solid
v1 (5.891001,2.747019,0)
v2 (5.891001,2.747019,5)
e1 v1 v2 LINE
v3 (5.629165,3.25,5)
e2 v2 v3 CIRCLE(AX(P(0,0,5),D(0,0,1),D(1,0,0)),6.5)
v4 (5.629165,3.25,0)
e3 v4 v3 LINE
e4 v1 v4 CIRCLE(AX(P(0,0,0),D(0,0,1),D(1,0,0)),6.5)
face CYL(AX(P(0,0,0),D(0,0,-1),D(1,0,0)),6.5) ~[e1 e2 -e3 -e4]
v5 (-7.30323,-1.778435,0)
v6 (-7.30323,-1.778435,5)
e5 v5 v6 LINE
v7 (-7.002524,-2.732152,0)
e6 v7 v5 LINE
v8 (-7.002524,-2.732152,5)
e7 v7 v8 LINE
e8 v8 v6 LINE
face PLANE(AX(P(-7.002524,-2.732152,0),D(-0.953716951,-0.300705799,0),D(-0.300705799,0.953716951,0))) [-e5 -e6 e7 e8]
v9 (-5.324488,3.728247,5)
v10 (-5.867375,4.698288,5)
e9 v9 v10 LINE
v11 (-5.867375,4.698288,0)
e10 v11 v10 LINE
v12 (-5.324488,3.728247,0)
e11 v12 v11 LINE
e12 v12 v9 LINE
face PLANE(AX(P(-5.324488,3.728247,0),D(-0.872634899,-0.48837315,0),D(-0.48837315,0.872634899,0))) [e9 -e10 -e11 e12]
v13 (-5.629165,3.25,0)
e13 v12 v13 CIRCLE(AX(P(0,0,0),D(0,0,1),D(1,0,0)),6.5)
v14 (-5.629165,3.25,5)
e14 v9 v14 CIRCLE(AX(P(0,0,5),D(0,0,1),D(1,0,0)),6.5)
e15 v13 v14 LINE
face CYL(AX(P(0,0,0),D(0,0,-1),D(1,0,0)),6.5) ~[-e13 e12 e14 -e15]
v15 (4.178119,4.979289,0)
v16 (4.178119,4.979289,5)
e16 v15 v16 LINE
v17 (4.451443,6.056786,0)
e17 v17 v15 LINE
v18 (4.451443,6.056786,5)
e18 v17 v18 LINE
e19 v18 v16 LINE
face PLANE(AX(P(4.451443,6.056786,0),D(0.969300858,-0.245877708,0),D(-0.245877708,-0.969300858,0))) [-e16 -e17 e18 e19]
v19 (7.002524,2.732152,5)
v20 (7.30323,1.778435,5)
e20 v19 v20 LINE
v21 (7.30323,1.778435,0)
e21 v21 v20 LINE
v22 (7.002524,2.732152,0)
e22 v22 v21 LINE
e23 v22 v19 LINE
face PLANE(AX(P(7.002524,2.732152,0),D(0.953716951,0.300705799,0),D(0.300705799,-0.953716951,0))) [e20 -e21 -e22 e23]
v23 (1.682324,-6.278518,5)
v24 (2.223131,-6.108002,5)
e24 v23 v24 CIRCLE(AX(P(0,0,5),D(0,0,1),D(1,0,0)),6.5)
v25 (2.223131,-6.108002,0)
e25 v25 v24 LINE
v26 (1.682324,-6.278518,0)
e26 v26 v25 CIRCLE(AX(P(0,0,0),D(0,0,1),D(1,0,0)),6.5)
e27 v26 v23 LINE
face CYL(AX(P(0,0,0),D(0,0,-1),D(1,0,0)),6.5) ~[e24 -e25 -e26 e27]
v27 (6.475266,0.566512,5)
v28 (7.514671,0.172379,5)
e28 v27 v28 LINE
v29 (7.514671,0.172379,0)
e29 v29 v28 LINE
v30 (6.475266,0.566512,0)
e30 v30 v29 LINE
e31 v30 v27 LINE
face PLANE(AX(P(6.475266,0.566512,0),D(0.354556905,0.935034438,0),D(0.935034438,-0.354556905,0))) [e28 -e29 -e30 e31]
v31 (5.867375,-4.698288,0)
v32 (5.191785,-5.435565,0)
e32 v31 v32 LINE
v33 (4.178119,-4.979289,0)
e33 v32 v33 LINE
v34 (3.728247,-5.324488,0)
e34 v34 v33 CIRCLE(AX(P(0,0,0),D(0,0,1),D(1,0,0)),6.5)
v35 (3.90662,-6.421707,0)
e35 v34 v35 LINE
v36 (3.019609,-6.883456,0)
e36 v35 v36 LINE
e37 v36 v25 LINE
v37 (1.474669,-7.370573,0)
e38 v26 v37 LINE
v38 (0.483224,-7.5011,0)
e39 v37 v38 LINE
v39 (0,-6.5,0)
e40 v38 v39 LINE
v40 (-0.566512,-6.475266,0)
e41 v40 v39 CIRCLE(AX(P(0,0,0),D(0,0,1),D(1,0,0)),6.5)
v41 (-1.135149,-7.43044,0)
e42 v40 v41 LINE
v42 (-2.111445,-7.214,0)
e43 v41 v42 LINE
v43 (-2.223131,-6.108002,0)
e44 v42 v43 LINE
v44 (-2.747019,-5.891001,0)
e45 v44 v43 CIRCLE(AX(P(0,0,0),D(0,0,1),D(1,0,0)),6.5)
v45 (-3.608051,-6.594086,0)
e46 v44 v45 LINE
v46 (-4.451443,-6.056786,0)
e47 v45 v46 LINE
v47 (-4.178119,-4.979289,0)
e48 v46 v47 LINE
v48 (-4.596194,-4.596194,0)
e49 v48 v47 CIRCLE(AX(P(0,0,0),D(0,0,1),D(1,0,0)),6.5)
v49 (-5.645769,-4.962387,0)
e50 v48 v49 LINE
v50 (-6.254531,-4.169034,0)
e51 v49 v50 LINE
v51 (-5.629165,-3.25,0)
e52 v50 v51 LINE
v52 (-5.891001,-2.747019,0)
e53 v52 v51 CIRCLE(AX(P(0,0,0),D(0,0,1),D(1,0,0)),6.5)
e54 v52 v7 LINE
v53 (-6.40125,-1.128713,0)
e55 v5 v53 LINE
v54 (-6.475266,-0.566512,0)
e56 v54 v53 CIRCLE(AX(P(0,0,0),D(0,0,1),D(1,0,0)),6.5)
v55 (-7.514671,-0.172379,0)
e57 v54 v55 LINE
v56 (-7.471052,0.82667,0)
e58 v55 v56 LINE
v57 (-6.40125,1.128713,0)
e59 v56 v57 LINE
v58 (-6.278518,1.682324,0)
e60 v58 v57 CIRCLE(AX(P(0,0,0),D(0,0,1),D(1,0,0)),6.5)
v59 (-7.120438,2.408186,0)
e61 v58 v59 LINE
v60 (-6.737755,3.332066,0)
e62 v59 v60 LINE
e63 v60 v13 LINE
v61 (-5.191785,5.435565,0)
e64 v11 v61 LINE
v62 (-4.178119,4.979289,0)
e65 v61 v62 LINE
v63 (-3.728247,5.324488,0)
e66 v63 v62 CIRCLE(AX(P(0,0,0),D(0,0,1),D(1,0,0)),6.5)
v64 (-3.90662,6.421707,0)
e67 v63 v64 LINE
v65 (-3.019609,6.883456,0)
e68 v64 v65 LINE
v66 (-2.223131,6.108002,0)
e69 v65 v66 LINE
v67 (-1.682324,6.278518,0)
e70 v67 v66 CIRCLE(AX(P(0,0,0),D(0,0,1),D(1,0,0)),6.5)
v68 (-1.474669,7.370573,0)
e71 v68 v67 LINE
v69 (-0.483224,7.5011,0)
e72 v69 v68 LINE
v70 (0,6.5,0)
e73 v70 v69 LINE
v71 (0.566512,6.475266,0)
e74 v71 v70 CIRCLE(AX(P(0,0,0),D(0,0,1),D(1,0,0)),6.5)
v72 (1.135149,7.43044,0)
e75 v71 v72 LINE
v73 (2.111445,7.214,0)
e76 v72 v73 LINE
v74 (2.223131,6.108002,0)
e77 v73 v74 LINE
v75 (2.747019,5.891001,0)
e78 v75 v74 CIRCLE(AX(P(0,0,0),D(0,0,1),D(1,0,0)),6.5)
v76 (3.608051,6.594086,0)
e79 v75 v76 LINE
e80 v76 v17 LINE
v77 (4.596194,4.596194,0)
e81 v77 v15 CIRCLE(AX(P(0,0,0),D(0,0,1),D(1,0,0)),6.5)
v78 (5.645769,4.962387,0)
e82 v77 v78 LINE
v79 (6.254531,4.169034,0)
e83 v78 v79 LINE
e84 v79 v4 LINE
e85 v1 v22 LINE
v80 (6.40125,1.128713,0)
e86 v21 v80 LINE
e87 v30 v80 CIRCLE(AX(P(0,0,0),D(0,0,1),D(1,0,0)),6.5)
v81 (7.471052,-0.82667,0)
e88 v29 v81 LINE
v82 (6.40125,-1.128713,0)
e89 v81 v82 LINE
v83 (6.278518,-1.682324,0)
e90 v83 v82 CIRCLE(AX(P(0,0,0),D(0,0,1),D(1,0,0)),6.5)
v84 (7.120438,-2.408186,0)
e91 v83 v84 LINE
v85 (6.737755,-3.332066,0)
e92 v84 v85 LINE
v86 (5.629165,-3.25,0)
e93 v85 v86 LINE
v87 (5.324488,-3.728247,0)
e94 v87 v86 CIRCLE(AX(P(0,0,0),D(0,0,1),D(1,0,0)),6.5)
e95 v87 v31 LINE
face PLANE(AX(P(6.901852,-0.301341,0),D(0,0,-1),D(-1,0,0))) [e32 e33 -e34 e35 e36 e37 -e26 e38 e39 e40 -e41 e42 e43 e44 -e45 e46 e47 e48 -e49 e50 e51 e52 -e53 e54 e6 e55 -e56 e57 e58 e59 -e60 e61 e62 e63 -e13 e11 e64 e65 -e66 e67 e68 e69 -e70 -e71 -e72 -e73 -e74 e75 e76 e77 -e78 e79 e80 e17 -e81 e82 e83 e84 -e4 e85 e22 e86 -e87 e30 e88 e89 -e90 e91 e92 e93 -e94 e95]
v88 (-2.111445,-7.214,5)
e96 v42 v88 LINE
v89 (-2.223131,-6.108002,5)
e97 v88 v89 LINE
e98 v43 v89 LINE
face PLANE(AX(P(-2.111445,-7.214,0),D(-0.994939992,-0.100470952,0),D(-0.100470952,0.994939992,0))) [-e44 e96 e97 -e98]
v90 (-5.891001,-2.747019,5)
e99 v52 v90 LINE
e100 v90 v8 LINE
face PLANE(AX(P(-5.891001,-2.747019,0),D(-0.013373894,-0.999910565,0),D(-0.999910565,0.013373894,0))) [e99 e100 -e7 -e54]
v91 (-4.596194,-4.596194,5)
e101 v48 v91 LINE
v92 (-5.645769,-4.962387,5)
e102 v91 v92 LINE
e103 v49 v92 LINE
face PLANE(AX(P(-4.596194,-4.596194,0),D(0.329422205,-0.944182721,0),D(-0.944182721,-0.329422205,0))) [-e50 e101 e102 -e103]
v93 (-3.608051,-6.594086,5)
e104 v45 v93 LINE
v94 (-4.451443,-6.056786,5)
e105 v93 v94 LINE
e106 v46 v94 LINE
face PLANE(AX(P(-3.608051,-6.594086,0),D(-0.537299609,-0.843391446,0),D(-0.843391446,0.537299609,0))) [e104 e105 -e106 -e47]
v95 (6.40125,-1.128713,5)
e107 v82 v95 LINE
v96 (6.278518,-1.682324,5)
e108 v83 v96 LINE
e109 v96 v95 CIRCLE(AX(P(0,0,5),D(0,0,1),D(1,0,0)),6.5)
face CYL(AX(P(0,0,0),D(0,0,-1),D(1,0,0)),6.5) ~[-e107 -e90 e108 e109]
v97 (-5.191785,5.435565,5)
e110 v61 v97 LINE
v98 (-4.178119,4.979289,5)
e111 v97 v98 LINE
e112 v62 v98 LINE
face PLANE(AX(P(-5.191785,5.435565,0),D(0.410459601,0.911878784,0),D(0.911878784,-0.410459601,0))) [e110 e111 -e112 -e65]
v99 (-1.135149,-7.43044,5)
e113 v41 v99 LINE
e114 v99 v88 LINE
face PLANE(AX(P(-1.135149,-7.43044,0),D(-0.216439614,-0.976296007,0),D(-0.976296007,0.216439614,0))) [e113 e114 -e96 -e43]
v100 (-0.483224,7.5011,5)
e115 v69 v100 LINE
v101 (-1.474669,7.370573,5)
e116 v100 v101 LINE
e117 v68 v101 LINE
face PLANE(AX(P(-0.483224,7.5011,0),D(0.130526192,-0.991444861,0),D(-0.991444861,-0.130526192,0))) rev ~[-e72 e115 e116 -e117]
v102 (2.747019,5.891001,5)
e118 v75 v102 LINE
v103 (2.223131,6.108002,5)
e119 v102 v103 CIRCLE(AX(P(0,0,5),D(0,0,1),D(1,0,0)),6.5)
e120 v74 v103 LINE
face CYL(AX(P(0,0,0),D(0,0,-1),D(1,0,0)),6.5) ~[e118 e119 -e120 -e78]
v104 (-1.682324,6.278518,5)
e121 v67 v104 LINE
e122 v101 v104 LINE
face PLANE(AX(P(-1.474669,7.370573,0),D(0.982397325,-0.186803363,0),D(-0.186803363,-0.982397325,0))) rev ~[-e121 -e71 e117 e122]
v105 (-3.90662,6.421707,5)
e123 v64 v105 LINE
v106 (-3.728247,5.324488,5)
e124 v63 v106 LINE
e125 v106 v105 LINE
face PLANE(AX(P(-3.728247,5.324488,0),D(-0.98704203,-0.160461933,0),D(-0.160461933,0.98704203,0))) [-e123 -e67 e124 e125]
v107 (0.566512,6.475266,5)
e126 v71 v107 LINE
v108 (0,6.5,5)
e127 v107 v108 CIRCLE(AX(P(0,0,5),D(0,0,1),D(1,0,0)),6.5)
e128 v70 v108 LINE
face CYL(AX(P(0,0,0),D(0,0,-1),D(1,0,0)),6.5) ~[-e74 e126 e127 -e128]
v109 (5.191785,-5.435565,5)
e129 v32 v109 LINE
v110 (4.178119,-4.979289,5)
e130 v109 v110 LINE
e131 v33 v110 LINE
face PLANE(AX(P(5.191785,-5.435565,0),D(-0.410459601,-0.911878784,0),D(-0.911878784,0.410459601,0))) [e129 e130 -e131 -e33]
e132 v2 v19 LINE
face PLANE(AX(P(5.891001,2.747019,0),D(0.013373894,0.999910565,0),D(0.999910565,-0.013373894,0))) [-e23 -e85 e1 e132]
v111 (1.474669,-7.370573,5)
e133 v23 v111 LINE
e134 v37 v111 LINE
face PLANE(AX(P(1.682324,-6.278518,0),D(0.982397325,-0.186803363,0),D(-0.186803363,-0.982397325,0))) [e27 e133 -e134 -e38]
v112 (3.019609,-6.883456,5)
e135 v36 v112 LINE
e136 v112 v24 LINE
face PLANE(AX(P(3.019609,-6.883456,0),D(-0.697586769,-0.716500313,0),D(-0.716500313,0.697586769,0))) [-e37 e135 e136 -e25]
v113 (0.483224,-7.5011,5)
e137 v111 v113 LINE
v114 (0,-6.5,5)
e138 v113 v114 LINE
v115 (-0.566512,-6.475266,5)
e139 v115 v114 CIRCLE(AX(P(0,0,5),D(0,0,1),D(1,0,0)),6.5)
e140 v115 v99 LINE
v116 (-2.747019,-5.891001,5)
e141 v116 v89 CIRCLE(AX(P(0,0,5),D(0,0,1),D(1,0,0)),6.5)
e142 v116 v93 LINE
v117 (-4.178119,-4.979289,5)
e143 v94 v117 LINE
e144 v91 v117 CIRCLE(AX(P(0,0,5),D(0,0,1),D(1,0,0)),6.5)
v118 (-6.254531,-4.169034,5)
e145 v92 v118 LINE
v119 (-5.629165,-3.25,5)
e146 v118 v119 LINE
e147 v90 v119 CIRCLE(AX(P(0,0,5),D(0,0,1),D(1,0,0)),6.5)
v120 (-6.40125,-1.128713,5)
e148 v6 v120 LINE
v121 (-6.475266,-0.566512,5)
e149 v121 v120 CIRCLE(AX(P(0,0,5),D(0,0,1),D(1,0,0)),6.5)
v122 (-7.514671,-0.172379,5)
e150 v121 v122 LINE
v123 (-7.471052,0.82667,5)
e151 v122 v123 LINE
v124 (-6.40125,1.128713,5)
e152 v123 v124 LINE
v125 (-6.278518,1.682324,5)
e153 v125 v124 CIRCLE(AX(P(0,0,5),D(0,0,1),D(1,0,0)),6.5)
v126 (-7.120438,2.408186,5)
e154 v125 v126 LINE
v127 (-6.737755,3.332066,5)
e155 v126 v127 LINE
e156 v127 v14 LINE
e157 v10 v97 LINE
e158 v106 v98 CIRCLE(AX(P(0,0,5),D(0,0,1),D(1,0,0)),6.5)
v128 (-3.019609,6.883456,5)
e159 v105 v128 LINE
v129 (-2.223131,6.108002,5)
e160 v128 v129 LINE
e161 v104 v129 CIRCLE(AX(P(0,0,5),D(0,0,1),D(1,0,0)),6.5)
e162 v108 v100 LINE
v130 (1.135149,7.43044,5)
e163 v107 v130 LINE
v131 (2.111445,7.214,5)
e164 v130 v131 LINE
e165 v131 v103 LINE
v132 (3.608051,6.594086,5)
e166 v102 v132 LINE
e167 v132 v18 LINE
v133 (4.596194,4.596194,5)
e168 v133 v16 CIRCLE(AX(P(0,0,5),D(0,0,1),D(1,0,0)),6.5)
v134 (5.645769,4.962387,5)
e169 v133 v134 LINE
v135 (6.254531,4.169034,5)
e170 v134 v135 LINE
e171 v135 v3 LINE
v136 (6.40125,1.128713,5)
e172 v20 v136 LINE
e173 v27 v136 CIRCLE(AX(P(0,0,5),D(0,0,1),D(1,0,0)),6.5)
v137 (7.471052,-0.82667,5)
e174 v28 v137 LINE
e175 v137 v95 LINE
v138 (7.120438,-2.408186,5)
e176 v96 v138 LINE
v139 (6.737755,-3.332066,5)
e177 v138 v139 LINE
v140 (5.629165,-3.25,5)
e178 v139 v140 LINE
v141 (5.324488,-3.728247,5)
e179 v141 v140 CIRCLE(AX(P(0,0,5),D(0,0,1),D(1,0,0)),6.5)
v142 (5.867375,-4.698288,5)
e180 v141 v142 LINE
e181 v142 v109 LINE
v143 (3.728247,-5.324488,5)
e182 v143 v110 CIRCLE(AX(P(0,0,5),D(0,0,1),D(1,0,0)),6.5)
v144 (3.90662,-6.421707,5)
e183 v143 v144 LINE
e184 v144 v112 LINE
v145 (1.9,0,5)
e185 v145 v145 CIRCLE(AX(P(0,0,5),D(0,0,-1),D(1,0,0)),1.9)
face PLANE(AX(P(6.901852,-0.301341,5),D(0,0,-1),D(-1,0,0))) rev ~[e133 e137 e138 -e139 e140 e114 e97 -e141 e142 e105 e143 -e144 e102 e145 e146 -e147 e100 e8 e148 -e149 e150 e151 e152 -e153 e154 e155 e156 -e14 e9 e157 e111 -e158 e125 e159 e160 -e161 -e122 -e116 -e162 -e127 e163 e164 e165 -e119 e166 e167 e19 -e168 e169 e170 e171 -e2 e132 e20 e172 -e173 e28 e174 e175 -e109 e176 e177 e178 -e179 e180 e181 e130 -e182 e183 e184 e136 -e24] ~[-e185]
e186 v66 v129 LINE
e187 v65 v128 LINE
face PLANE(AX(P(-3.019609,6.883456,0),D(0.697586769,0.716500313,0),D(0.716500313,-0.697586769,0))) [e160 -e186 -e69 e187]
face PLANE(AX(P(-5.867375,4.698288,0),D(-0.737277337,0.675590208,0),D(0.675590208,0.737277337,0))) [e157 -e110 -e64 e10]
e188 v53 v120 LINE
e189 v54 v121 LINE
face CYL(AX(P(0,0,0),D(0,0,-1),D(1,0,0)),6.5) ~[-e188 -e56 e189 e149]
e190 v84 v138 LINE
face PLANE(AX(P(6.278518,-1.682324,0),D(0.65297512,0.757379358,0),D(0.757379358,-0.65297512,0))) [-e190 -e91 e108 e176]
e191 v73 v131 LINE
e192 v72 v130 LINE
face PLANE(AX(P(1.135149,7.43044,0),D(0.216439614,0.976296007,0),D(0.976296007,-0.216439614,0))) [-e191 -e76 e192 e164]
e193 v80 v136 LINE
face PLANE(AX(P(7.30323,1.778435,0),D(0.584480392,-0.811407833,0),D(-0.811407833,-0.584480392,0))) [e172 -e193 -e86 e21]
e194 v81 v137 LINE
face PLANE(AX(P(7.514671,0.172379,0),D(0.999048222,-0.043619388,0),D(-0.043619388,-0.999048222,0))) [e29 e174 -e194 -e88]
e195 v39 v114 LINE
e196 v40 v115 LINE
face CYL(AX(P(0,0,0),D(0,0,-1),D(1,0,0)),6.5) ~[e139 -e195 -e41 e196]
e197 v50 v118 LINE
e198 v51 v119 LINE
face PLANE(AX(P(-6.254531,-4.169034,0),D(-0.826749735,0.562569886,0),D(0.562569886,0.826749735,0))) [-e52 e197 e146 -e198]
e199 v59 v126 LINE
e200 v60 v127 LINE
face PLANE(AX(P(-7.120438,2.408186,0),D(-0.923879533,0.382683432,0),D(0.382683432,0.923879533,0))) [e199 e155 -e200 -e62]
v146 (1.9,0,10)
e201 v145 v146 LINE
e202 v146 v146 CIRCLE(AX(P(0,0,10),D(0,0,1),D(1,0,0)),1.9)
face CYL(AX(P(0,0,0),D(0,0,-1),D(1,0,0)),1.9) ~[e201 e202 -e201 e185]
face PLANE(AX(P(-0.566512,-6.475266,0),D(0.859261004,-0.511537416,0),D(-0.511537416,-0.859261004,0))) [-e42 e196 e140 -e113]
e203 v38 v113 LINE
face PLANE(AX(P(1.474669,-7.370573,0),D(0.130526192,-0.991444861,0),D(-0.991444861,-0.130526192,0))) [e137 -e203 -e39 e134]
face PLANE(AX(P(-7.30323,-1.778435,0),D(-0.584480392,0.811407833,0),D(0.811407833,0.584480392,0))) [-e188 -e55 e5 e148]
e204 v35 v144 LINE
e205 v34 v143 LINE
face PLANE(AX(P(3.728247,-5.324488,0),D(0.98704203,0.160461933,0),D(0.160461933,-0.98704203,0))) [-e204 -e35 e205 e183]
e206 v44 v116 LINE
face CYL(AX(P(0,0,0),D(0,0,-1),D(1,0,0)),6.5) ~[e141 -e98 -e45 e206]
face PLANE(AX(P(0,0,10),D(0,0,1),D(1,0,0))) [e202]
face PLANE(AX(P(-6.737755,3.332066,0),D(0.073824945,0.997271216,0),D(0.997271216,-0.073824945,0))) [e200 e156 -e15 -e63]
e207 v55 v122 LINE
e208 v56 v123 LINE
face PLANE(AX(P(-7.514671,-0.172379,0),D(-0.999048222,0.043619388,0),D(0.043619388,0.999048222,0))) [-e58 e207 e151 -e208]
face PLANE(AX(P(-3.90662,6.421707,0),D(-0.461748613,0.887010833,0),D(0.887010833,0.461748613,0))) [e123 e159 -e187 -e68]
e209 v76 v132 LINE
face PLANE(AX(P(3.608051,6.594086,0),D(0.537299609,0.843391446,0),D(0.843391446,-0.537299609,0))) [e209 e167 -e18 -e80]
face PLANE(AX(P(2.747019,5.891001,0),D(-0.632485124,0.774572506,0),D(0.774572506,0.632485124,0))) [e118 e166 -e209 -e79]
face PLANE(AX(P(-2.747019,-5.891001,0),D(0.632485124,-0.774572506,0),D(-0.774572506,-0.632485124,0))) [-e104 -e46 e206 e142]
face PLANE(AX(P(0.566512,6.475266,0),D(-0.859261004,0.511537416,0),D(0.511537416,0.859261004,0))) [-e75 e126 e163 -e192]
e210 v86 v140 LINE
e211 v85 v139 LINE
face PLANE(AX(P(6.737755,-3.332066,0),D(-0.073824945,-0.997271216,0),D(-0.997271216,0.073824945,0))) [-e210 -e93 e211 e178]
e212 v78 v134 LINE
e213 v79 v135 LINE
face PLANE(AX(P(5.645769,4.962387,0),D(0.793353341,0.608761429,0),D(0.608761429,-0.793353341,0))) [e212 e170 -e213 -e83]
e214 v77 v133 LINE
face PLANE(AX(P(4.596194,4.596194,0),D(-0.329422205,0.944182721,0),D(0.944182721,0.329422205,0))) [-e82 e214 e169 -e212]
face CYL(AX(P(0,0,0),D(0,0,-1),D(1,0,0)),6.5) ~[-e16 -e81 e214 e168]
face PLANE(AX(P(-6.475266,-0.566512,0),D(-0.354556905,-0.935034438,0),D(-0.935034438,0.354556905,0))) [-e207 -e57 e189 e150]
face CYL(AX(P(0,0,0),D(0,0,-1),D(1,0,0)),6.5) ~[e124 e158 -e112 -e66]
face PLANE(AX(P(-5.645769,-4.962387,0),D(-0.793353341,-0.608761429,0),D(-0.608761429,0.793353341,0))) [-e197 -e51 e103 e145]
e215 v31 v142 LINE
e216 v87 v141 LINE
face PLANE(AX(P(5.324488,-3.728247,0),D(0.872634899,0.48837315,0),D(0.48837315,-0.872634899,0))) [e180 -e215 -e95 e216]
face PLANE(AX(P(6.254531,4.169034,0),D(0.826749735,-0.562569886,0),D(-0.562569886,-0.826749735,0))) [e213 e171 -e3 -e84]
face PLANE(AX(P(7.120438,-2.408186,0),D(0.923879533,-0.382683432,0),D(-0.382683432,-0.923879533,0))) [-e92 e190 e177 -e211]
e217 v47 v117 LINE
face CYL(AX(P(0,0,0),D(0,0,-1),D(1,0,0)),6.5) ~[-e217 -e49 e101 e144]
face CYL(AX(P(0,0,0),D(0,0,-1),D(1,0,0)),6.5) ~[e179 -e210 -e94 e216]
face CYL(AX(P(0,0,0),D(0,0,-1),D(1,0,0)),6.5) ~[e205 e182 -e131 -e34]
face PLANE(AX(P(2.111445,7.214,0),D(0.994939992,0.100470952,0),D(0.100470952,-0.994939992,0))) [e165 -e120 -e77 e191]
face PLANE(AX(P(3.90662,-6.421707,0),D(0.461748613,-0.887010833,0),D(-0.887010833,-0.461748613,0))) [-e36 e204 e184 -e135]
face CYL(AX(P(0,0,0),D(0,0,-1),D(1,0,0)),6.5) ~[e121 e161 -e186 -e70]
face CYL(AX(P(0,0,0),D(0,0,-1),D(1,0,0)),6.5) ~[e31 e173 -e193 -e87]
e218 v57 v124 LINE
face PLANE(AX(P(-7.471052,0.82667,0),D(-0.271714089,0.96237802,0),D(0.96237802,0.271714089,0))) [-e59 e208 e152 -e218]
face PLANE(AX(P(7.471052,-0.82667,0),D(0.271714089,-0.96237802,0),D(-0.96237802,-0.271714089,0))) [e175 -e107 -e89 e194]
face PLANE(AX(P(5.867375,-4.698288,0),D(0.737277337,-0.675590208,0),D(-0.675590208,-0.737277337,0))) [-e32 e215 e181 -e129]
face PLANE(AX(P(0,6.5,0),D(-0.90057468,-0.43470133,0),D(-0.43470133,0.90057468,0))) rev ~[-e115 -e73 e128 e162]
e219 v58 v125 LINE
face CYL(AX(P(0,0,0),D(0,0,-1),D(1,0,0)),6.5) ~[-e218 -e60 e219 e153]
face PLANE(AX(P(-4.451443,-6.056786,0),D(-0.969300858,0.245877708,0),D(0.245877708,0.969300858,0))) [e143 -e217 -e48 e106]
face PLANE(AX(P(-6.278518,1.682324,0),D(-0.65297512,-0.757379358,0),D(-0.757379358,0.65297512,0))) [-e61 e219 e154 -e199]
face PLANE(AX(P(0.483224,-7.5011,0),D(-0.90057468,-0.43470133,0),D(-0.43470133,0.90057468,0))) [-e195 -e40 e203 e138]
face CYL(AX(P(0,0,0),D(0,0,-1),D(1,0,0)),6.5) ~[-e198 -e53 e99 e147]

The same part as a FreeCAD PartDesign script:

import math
import FreeCAD as App
import Part
import Sketcher
Q = App.Units.Quantity

doc = App.newDocument("Part")
params = doc.addObject("Spreadsheet::Sheet", "Params")
for row, (alias, value) in enumerate([
    ("sketch1_diameter", "3.8 mm"),
    ("pad1_length", "10 mm"),
    ("sketch2_diameter", "13 mm"),
    ("pad2_length", "5 mm"),
    ("sketch3_radius", "6.5 mm"),
    ("sketch3_length", "1 mm"),
    ("pad3_length", "5 mm"),
], start=1):
    params.set(f"A{row}", alias)
    params.set(f"B{row}", "=" + value)
    params.setAlias(f"B{row}", alias)

body = doc.addObject("PartDesign::Body", "Body")

# Sketch on XY plane
sketch1 = body.newObject("Sketcher::SketchObject", "Sketch")
sketch1.AttachmentSupport = (doc.getObject("XY_Plane"), [""])
sketch1.MapMode = "FlatFace"
sketch1.addGeometry(Part.Circle(App.Vector(0, 0, 0), App.Vector(0, 0, 1), 1.9), False)
sketch1.addConstraint(Sketcher.Constraint("Coincident", 0, 3, -1, 1))
sketch1.addConstraint(Sketcher.Constraint("Diameter", 0, 3.8))
sketch1.setExpression("Constraints[1]", "Params.sketch1_diameter")
pad1 = body.newObject("PartDesign::Pad", "Pad")
pad1.Profile = sketch1
pad1.setExpression("Length", "Params.pad1_length")

# Sketch on XY plane
sketch2 = body.newObject("Sketcher::SketchObject", "Sketch001")
sketch2.AttachmentSupport = (doc.getObject("XY_Plane"), [""])
sketch2.MapMode = "FlatFace"
sketch2.addGeometry(Part.Circle(App.Vector(0, 0, 0), App.Vector(0, 0, 1), 6), False)
sketch2.addConstraint(Sketcher.Constraint("Coincident", 0, 3, -1, 1))
sketch2.addConstraint(Sketcher.Constraint("Diameter", 0, 13.0))
sketch2.setExpression("Constraints[1]", "Params.sketch2_diameter")
pad2 = body.newObject("PartDesign::Pad", "Pad001")
pad2.Profile = sketch2
pad2.setExpression("Length", "Params.pad2_length")

# Sketch on XY plane
sketch3 = body.newObject("Sketcher::SketchObject", "Sketch002")
sketch3.AttachmentSupport = (doc.getObject("XY_Plane"), [""])
sketch3.MapMode = "FlatFace"
sketch3.addGeometry(Part.LineSegment(App.Vector(-1.5, 7.4, 0), App.Vector(-0.5, 7.5, 0)), False)
sketch3.addGeometry(Part.LineSegment(App.Vector(-0.5, 7.5, 0), App.Vector(0, 6.5, 0)), False)
sketch3.addGeometry(Part.ArcOfCircle(Part.Circle(App.Vector(0, 0, 0), App.Vector(0, 0, 1), 6.5), math.radians(90), math.radians(105)), False)
sketch3.addGeometry(Part.LineSegment(App.Vector(-1.7, 6.3, 0), App.Vector(-1.5, 7.4, 0)), False)
sketch3.addGeometry(Part.LineSegment(App.Vector(-3, 6.9, 0), App.Vector(-2.2, 6.1, 0)), False)
sketch3.addGeometry(Part.ArcOfCircle(Part.Circle(App.Vector(0, 0, 0), App.Vector(0, 0, 1), 6.5), math.radians(110), math.radians(125)), False)
sketch3.addGeometry(Part.LineSegment(App.Vector(-3.7, 5.3, 0), App.Vector(-3.9, 6.4, 0)), False)
sketch3.addGeometry(Part.LineSegment(App.Vector(-3.9, 6.4, 0), App.Vector(-3, 6.9, 0)), False)
sketch3.addGeometry(Part.LineSegment(App.Vector(-5.2, 5.4, 0), App.Vector(-4.2, 5, 0)), False)
sketch3.addGeometry(Part.ArcOfCircle(Part.Circle(App.Vector(0, 0, 0), App.Vector(0, 0, 1), 6.5), math.radians(130), math.radians(145)), False)
sketch3.addGeometry(Part.LineSegment(App.Vector(-5.3, 3.7, 0), App.Vector(-5.9, 4.7, 0)), False)
sketch3.addGeometry(Part.LineSegment(App.Vector(-5.9, 4.7, 0), App.Vector(-5.2, 5.4, 0)), False)
sketch3.addGeometry(Part.LineSegment(App.Vector(-6.7, 3.3, 0), App.Vector(-5.6, 3.2, 0)), False)
sketch3.addGeometry(Part.ArcOfCircle(Part.Circle(App.Vector(0, 0, 0), App.Vector(0, 0, 1), 6.5), math.radians(150), math.radians(165)), False)
sketch3.addGeometry(Part.LineSegment(App.Vector(-6.3, 1.7, 0), App.Vector(-7.1, 2.4, 0)), False)
sketch3.addGeometry(Part.LineSegment(App.Vector(-7.1, 2.4, 0), App.Vector(-6.7, 3.3, 0)), False)
sketch3.addGeometry(Part.LineSegment(App.Vector(-7.5, 0.8, 0), App.Vector(-6.4, 1.1, 0)), False)
sketch3.addGeometry(Part.ArcOfCircle(Part.Circle(App.Vector(0, 0, 0), App.Vector(0, 0, 1), 6.5), math.radians(170), math.radians(185)), False)
sketch3.addGeometry(Part.LineSegment(App.Vector(-6.5, -0.6, 0), App.Vector(-7.5, -0.2, 0)), False)
sketch3.addGeometry(Part.LineSegment(App.Vector(-7.5, -0.2, 0), App.Vector(-7.5, 0.8, 0)), False)
sketch3.addGeometry(Part.LineSegment(App.Vector(-7.3, -1.8, 0), App.Vector(-6.4, -1.1, 0)), False)
sketch3.addGeometry(Part.ArcOfCircle(Part.Circle(App.Vector(0, 0, 0), App.Vector(0, 0, 1), 6.5), math.radians(-170), math.radians(-155)), False)
sketch3.addGeometry(Part.LineSegment(App.Vector(-5.9, -2.7, 0), App.Vector(-7, -2.7, 0)), False)
sketch3.addGeometry(Part.LineSegment(App.Vector(-7, -2.7, 0), App.Vector(-7.3, -1.8, 0)), False)
sketch3.addGeometry(Part.LineSegment(App.Vector(-6.3, -4.2, 0), App.Vector(-5.6, -3.2, 0)), False)
sketch3.addGeometry(Part.ArcOfCircle(Part.Circle(App.Vector(0, 0, 0), App.Vector(0, 0, 1), 6.5), math.radians(-150), math.radians(-135)), False)
sketch3.addGeometry(Part.LineSegment(App.Vector(-4.6, -4.6, 0), App.Vector(-5.6, -5, 0)), False)
sketch3.addGeometry(Part.LineSegment(App.Vector(-5.6, -5, 0), App.Vector(-6.3, -4.2, 0)), False)
sketch3.addGeometry(Part.LineSegment(App.Vector(-4.5, -6.1, 0), App.Vector(-4.2, -5, 0)), False)
sketch3.addGeometry(Part.ArcOfCircle(Part.Circle(App.Vector(0, 0, 0), App.Vector(0, 0, 1), 6.5), math.radians(-130), math.radians(-115)), False)
sketch3.addGeometry(Part.LineSegment(App.Vector(-2.7, -5.9, 0), App.Vector(-3.6, -6.6, 0)), False)
sketch3.addGeometry(Part.LineSegment(App.Vector(-3.6, -6.6, 0), App.Vector(-4.5, -6.1, 0)), False)
sketch3.addGeometry(Part.LineSegment(App.Vector(-2.1, -7.2, 0), App.Vector(-2.2, -6.1, 0)), False)
sketch3.addGeometry(Part.ArcOfCircle(Part.Circle(App.Vector(0, 0, 0), App.Vector(0, 0, 1), 6.5), math.radians(-110), math.radians(-95)), False)
sketch3.addGeometry(Part.LineSegment(App.Vector(-0.6, -6.5, 0), App.Vector(-1.1, -7.4, 0)), False)
sketch3.addGeometry(Part.LineSegment(App.Vector(-1.1, -7.4, 0), App.Vector(-2.1, -7.2, 0)), False)
sketch3.addGeometry(Part.LineSegment(App.Vector(0.5, -7.5, 0), App.Vector(0, -6.5, 0)), False)
sketch3.addGeometry(Part.ArcOfCircle(Part.Circle(App.Vector(0, 0, 0), App.Vector(0, 0, 1), 6.5), math.radians(-90), math.radians(-75)), False)
sketch3.addGeometry(Part.LineSegment(App.Vector(1.7, -6.3, 0), App.Vector(1.5, -7.4, 0)), False)
sketch3.addGeometry(Part.LineSegment(App.Vector(1.5, -7.4, 0), App.Vector(0.5, -7.5, 0)), False)
sketch3.addGeometry(Part.LineSegment(App.Vector(3, -6.9, 0), App.Vector(2.2, -6.1, 0)), False)
sketch3.addGeometry(Part.ArcOfCircle(Part.Circle(App.Vector(0, 0, 0), App.Vector(0, 0, 1), 6.5), math.radians(-70), math.radians(-55)), False)
sketch3.addGeometry(Part.LineSegment(App.Vector(3.7, -5.3, 0), App.Vector(3.9, -6.4, 0)), False)
sketch3.addGeometry(Part.LineSegment(App.Vector(3.9, -6.4, 0), App.Vector(3, -6.9, 0)), False)
sketch3.addGeometry(Part.LineSegment(App.Vector(5.2, -5.4, 0), App.Vector(4.2, -5, 0)), False)
sketch3.addGeometry(Part.ArcOfCircle(Part.Circle(App.Vector(0, 0, 0), App.Vector(0, 0, 1), 6.5), math.radians(-50), math.radians(-35)), False)
sketch3.addGeometry(Part.LineSegment(App.Vector(5.3, -3.7, 0), App.Vector(5.9, -4.7, 0)), False)
sketch3.addGeometry(Part.LineSegment(App.Vector(5.9, -4.7, 0), App.Vector(5.2, -5.4, 0)), False)
sketch3.addGeometry(Part.LineSegment(App.Vector(6.7, -3.3, 0), App.Vector(5.6, -3.2, 0)), False)
sketch3.addGeometry(Part.ArcOfCircle(Part.Circle(App.Vector(0, 0, 0), App.Vector(0, 0, 1), 6.5), math.radians(-30), math.radians(-15)), False)
sketch3.addGeometry(Part.LineSegment(App.Vector(6.3, -1.7, 0), App.Vector(7.1, -2.4, 0)), False)
sketch3.addGeometry(Part.LineSegment(App.Vector(7.1, -2.4, 0), App.Vector(6.7, -3.3, 0)), False)
sketch3.addGeometry(Part.LineSegment(App.Vector(7.5, -0.8, 0), App.Vector(6.4, -1.1, 0)), False)
sketch3.addGeometry(Part.ArcOfCircle(Part.Circle(App.Vector(0, 0, 0), App.Vector(0, 0, 1), 6.5), math.radians(-10), math.radians(5)), False)
sketch3.addGeometry(Part.LineSegment(App.Vector(6.5, 0.6, 0), App.Vector(7.5, 0.2, 0)), False)
sketch3.addGeometry(Part.LineSegment(App.Vector(7.5, 0.2, 0), App.Vector(7.5, -0.8, 0)), False)
sketch3.addGeometry(Part.LineSegment(App.Vector(7.3, 1.8, 0), App.Vector(6.4, 1.1, 0)), False)
sketch3.addGeometry(Part.ArcOfCircle(Part.Circle(App.Vector(0, 0, 0), App.Vector(0, 0, 1), 6.5), math.radians(10), math.radians(25)), False)
sketch3.addGeometry(Part.LineSegment(App.Vector(5.9, 2.7, 0), App.Vector(7, 2.7, 0)), False)
sketch3.addGeometry(Part.LineSegment(App.Vector(7, 2.7, 0), App.Vector(7.3, 1.8, 0)), False)
sketch3.addGeometry(Part.LineSegment(App.Vector(6.3, 4.2, 0), App.Vector(5.6, 3.2, 0)), False)
sketch3.addGeometry(Part.ArcOfCircle(Part.Circle(App.Vector(0, 0, 0), App.Vector(0, 0, 1), 6.5), math.radians(30), math.radians(45)), False)
sketch3.addGeometry(Part.LineSegment(App.Vector(4.6, 4.6, 0), App.Vector(5.6, 5, 0)), False)
sketch3.addGeometry(Part.LineSegment(App.Vector(5.6, 5, 0), App.Vector(6.3, 4.2, 0)), False)
sketch3.addGeometry(Part.LineSegment(App.Vector(4.5, 6.1, 0), App.Vector(4.2, 5, 0)), False)
sketch3.addGeometry(Part.ArcOfCircle(Part.Circle(App.Vector(0, 0, 0), App.Vector(0, 0, 1), 6.5), math.radians(50), math.radians(65)), False)
sketch3.addGeometry(Part.LineSegment(App.Vector(2.7, 5.9, 0), App.Vector(3.6, 6.6, 0)), False)
sketch3.addGeometry(Part.LineSegment(App.Vector(3.6, 6.6, 0), App.Vector(4.5, 6.1, 0)), False)
sketch3.addGeometry(Part.LineSegment(App.Vector(2.1, 7.2, 0), App.Vector(2.2, 6.1, 0)), False)
sketch3.addGeometry(Part.ArcOfCircle(Part.Circle(App.Vector(0, 0, 0), App.Vector(0, 0, 1), 6.5), math.radians(70), math.radians(85)), False)
sketch3.addGeometry(Part.LineSegment(App.Vector(0.6, 6.5, 0), App.Vector(1.1, 7.4, 0)), False)
sketch3.addGeometry(Part.LineSegment(App.Vector(1.1, 7.4, 0), App.Vector(2.1, 7.2, 0)), False)
sketch3.addConstraint(Sketcher.Constraint("Coincident", 0, 2, 1, 1))
sketch3.addConstraint(Sketcher.Constraint("Coincident", 1, 2, 2, 1))
sketch3.addConstraint(Sketcher.Constraint("Coincident", 2, 2, 3, 1))
sketch3.addConstraint(Sketcher.Constraint("Coincident", 3, 2, 0, 1))
sketch3.addConstraint(Sketcher.Constraint("Coincident", 4, 2, 5, 1))
sketch3.addConstraint(Sketcher.Constraint("Coincident", 5, 2, 6, 1))
sketch3.addConstraint(Sketcher.Constraint("Coincident", 6, 2, 7, 1))
sketch3.addConstraint(Sketcher.Constraint("Coincident", 7, 2, 4, 1))
sketch3.addConstraint(Sketcher.Constraint("Coincident", 8, 2, 9, 1))
sketch3.addConstraint(Sketcher.Constraint("Coincident", 9, 2, 10, 1))
sketch3.addConstraint(Sketcher.Constraint("Coincident", 10, 2, 11, 1))
sketch3.addConstraint(Sketcher.Constraint("Coincident", 11, 2, 8, 1))
sketch3.addConstraint(Sketcher.Constraint("Coincident", 12, 2, 13, 1))
sketch3.addConstraint(Sketcher.Constraint("Coincident", 13, 2, 14, 1))
sketch3.addConstraint(Sketcher.Constraint("Coincident", 14, 2, 15, 1))
sketch3.addConstraint(Sketcher.Constraint("Coincident", 15, 2, 12, 1))
sketch3.addConstraint(Sketcher.Constraint("Coincident", 16, 2, 17, 1))
sketch3.addConstraint(Sketcher.Constraint("Coincident", 17, 2, 18, 1))
sketch3.addConstraint(Sketcher.Constraint("Coincident", 18, 2, 19, 1))
sketch3.addConstraint(Sketcher.Constraint("Coincident", 19, 2, 16, 1))
sketch3.addConstraint(Sketcher.Constraint("Coincident", 20, 2, 21, 1))
sketch3.addConstraint(Sketcher.Constraint("Coincident", 21, 2, 22, 1))
sketch3.addConstraint(Sketcher.Constraint("Coincident", 22, 2, 23, 1))
sketch3.addConstraint(Sketcher.Constraint("Coincident", 23, 2, 20, 1))
sketch3.addConstraint(Sketcher.Constraint("Coincident", 24, 2, 25, 1))
sketch3.addConstraint(Sketcher.Constraint("Coincident", 25, 2, 26, 1))
sketch3.addConstraint(Sketcher.Constraint("Coincident", 26, 2, 27, 1))
sketch3.addConstraint(Sketcher.Constraint("Coincident", 27, 2, 24, 1))
sketch3.addConstraint(Sketcher.Constraint("Coincident", 28, 2, 29, 1))
sketch3.addConstraint(Sketcher.Constraint("Coincident", 29, 2, 30, 1))
sketch3.addConstraint(Sketcher.Constraint("Coincident", 30, 2, 31, 1))
sketch3.addConstraint(Sketcher.Constraint("Coincident", 31, 2, 28, 1))
sketch3.addConstraint(Sketcher.Constraint("Coincident", 32, 2, 33, 1))
sketch3.addConstraint(Sketcher.Constraint("Coincident", 33, 2, 34, 1))
sketch3.addConstraint(Sketcher.Constraint("Coincident", 34, 2, 35, 1))
sketch3.addConstraint(Sketcher.Constraint("Coincident", 35, 2, 32, 1))
sketch3.addConstraint(Sketcher.Constraint("Coincident", 36, 2, 37, 1))
sketch3.addConstraint(Sketcher.Constraint("Coincident", 37, 2, 38, 1))
sketch3.addConstraint(Sketcher.Constraint("Coincident", 38, 2, 39, 1))
sketch3.addConstraint(Sketcher.Constraint("Coincident", 39, 2, 36, 1))
sketch3.addConstraint(Sketcher.Constraint("Coincident", 40, 2, 41, 1))
sketch3.addConstraint(Sketcher.Constraint("Coincident", 41, 2, 42, 1))
sketch3.addConstraint(Sketcher.Constraint("Coincident", 42, 2, 43, 1))
sketch3.addConstraint(Sketcher.Constraint("Coincident", 43, 2, 40, 1))
sketch3.addConstraint(Sketcher.Constraint("Coincident", 44, 2, 45, 1))
sketch3.addConstraint(Sketcher.Constraint("Coincident", 45, 2, 46, 1))
sketch3.addConstraint(Sketcher.Constraint("Coincident", 46, 2, 47, 1))
sketch3.addConstraint(Sketcher.Constraint("Coincident", 47, 2, 44, 1))
sketch3.addConstraint(Sketcher.Constraint("Coincident", 48, 2, 49, 1))
sketch3.addConstraint(Sketcher.Constraint("Coincident", 49, 2, 50, 1))
sketch3.addConstraint(Sketcher.Constraint("Coincident", 50, 2, 51, 1))
sketch3.addConstraint(Sketcher.Constraint("Coincident", 51, 2, 48, 1))
sketch3.addConstraint(Sketcher.Constraint("Coincident", 52, 2, 53, 1))
sketch3.addConstraint(Sketcher.Constraint("Coincident", 53, 2, 54, 1))
sketch3.addConstraint(Sketcher.Constraint("Coincident", 54, 2, 55, 1))
sketch3.addConstraint(Sketcher.Constraint("Coincident", 55, 2, 52, 1))
sketch3.addConstraint(Sketcher.Constraint("Coincident", 56, 2, 57, 1))
sketch3.addConstraint(Sketcher.Constraint("Coincident", 57, 2, 58, 1))
sketch3.addConstraint(Sketcher.Constraint("Coincident", 58, 2, 59, 1))
sketch3.addConstraint(Sketcher.Constraint("Coincident", 59, 2, 56, 1))
sketch3.addConstraint(Sketcher.Constraint("Coincident", 60, 2, 61, 1))
sketch3.addConstraint(Sketcher.Constraint("Coincident", 61, 2, 62, 1))
sketch3.addConstraint(Sketcher.Constraint("Coincident", 62, 2, 63, 1))
sketch3.addConstraint(Sketcher.Constraint("Coincident", 63, 2, 60, 1))
sketch3.addConstraint(Sketcher.Constraint("Coincident", 64, 2, 65, 1))
sketch3.addConstraint(Sketcher.Constraint("Coincident", 65, 2, 66, 1))
sketch3.addConstraint(Sketcher.Constraint("Coincident", 66, 2, 67, 1))
sketch3.addConstraint(Sketcher.Constraint("Coincident", 67, 2, 64, 1))
sketch3.addConstraint(Sketcher.Constraint("Coincident", 68, 2, 69, 1))
sketch3.addConstraint(Sketcher.Constraint("Coincident", 69, 2, 70, 1))
sketch3.addConstraint(Sketcher.Constraint("Coincident", 70, 2, 71, 1))
sketch3.addConstraint(Sketcher.Constraint("Coincident", 71, 2, 68, 1))
sketch3.addConstraint(Sketcher.Constraint("Coincident", 2, 3, -1, 1))
sketch3.addConstraint(Sketcher.Constraint("Coincident", 5, 3, -1, 1))
sketch3.addConstraint(Sketcher.Constraint("Coincident", 9, 3, -1, 1))
sketch3.addConstraint(Sketcher.Constraint("Coincident", 13, 3, -1, 1))
sketch3.addConstraint(Sketcher.Constraint("Coincident", 17, 3, -1, 1))
sketch3.addConstraint(Sketcher.Constraint("Coincident", 21, 3, -1, 1))
sketch3.addConstraint(Sketcher.Constraint("Coincident", 25, 3, -1, 1))
sketch3.addConstraint(Sketcher.Constraint("Coincident", 29, 3, -1, 1))
sketch3.addConstraint(Sketcher.Constraint("Coincident", 33, 3, -1, 1))
sketch3.addConstraint(Sketcher.Constraint("Coincident", 37, 3, -1, 1))
sketch3.addConstraint(Sketcher.Constraint("Coincident", 41, 3, -1, 1))
sketch3.addConstraint(Sketcher.Constraint("Coincident", 45, 3, -1, 1))
sketch3.addConstraint(Sketcher.Constraint("Coincident", 49, 3, -1, 1))
sketch3.addConstraint(Sketcher.Constraint("Coincident", 53, 3, -1, 1))
sketch3.addConstraint(Sketcher.Constraint("Coincident", 57, 3, -1, 1))
sketch3.addConstraint(Sketcher.Constraint("Coincident", 61, 3, -1, 1))
sketch3.addConstraint(Sketcher.Constraint("Coincident", 65, 3, -1, 1))
sketch3.addConstraint(Sketcher.Constraint("Coincident", 69, 3, -1, 1))
sketch3.addConstraint(Sketcher.Constraint("Equal", 2, 5))
sketch3.addConstraint(Sketcher.Constraint("Equal", 5, 9))
sketch3.addConstraint(Sketcher.Constraint("Equal", 9, 13))
sketch3.addConstraint(Sketcher.Constraint("Equal", 13, 17))
sketch3.addConstraint(Sketcher.Constraint("Equal", 17, 21))
sketch3.addConstraint(Sketcher.Constraint("Equal", 21, 25))
sketch3.addConstraint(Sketcher.Constraint("Equal", 25, 29))
sketch3.addConstraint(Sketcher.Constraint("Equal", 29, 33))
sketch3.addConstraint(Sketcher.Constraint("Equal", 33, 37))
sketch3.addConstraint(Sketcher.Constraint("Equal", 37, 41))
sketch3.addConstraint(Sketcher.Constraint("Equal", 41, 45))
sketch3.addConstraint(Sketcher.Constraint("Equal", 45, 49))
sketch3.addConstraint(Sketcher.Constraint("Equal", 49, 53))
sketch3.addConstraint(Sketcher.Constraint("Equal", 53, 57))
sketch3.addConstraint(Sketcher.Constraint("Equal", 57, 61))
sketch3.addConstraint(Sketcher.Constraint("Equal", 61, 65))
sketch3.addConstraint(Sketcher.Constraint("Equal", 65, 69))
sketch3.addConstraint(Sketcher.Constraint("Symmetric", 3, 2, 38, 2, -1, 1))
sketch3.addConstraint(Sketcher.Constraint("Symmetric", 0, 2, 39, 2, -1, 1))
sketch3.addConstraint(Sketcher.Constraint("Symmetric", 6, 2, 42, 2, -1, 1))
sketch3.addConstraint(Sketcher.Constraint("Symmetric", 7, 2, 43, 2, -1, 1))
sketch3.addConstraint(Sketcher.Constraint("Symmetric", 10, 2, 46, 2, -1, 1))
sketch3.addConstraint(Sketcher.Constraint("Symmetric", 11, 2, 47, 2, -1, 1))
sketch3.addConstraint(Sketcher.Constraint("Symmetric", 14, 2, 50, 2, -1, 1))
sketch3.addConstraint(Sketcher.Constraint("Symmetric", 15, 2, 51, 2, -1, 1))
sketch3.addConstraint(Sketcher.Constraint("Symmetric", 18, 2, 54, 2, -1, 1))
sketch3.addConstraint(Sketcher.Constraint("Symmetric", 19, 2, 55, 2, -1, 1))
sketch3.addConstraint(Sketcher.Constraint("Symmetric", 22, 2, 58, 2, -1, 1))
sketch3.addConstraint(Sketcher.Constraint("Symmetric", 23, 2, 59, 2, -1, 1))
sketch3.addConstraint(Sketcher.Constraint("Symmetric", 26, 2, 62, 2, -1, 1))
sketch3.addConstraint(Sketcher.Constraint("Symmetric", 27, 2, 63, 2, -1, 1))
sketch3.addConstraint(Sketcher.Constraint("Symmetric", 30, 2, 66, 2, -1, 1))
sketch3.addConstraint(Sketcher.Constraint("Symmetric", 31, 2, 67, 2, -1, 1))
sketch3.addConstraint(Sketcher.Constraint("Symmetric", 34, 2, 70, 2, -1, 1))
sketch3.addConstraint(Sketcher.Constraint("Symmetric", 35, 2, 71, 2, -1, 1))
sketch3.addConstraint(Sketcher.Constraint("PointOnObject", 1, 2, -2))
sketch3.addConstraint(Sketcher.Constraint("PointOnObject", 36, 2, -2))
sketch3.addConstraint(Sketcher.Constraint("Parallel", 3, 38))
sketch3.addConstraint(Sketcher.Constraint("Parallel", 4, 40))
sketch3.addConstraint(Sketcher.Constraint("Parallel", 6, 42))
sketch3.addConstraint(Sketcher.Constraint("Parallel", 8, 44))
sketch3.addConstraint(Sketcher.Constraint("Parallel", 10, 46))
sketch3.addConstraint(Sketcher.Constraint("Parallel", 12, 48))
sketch3.addConstraint(Sketcher.Constraint("Parallel", 14, 50))
sketch3.addConstraint(Sketcher.Constraint("Parallel", 16, 52))
sketch3.addConstraint(Sketcher.Constraint("Parallel", 18, 54))
sketch3.addConstraint(Sketcher.Constraint("Parallel", 20, 56))
sketch3.addConstraint(Sketcher.Constraint("Parallel", 22, 58))
sketch3.addConstraint(Sketcher.Constraint("Parallel", 24, 60))
sketch3.addConstraint(Sketcher.Constraint("Parallel", 26, 62))
sketch3.addConstraint(Sketcher.Constraint("Parallel", 28, 64))
sketch3.addConstraint(Sketcher.Constraint("Parallel", 30, 66))
sketch3.addConstraint(Sketcher.Constraint("Parallel", 32, 68))
sketch3.addConstraint(Sketcher.Constraint("Parallel", 34, 70))
sketch3.addConstraint(Sketcher.Constraint("Horizontal", 32, 2, 40, 2))
sketch3.addConstraint(Sketcher.Constraint("Horizontal", 28, 2, 44, 2))
sketch3.addConstraint(Sketcher.Constraint("Horizontal", 24, 2, 48, 2))
sketch3.addConstraint(Sketcher.Constraint("Horizontal", 20, 2, 52, 2))
sketch3.addConstraint(Sketcher.Constraint("Equal", 1, 3))
sketch3.addConstraint(Sketcher.Constraint("Equal", 3, 4))
sketch3.addConstraint(Sketcher.Constraint("Equal", 4, 6))
sketch3.addConstraint(Sketcher.Constraint("Equal", 0, 7))
sketch3.addConstraint(Sketcher.Constraint("Equal", 6, 8))
sketch3.addConstraint(Sketcher.Constraint("Equal", 8, 10))
sketch3.addConstraint(Sketcher.Constraint("Equal", 7, 11))
sketch3.addConstraint(Sketcher.Constraint("Equal", 10, 12))
sketch3.addConstraint(Sketcher.Constraint("Equal", 12, 14))
sketch3.addConstraint(Sketcher.Constraint("Equal", 11, 15))
sketch3.addConstraint(Sketcher.Constraint("Equal", 14, 16))
sketch3.addConstraint(Sketcher.Constraint("Equal", 16, 18))
sketch3.addConstraint(Sketcher.Constraint("Equal", 15, 19))
sketch3.addConstraint(Sketcher.Constraint("Equal", 18, 20))
sketch3.addConstraint(Sketcher.Constraint("Equal", 20, 22))
sketch3.addConstraint(Sketcher.Constraint("Equal", 19, 23))
sketch3.addConstraint(Sketcher.Constraint("Equal", 22, 24))
sketch3.addConstraint(Sketcher.Constraint("Equal", 24, 26))
sketch3.addConstraint(Sketcher.Constraint("Equal", 23, 27))
sketch3.addConstraint(Sketcher.Constraint("Equal", 26, 28))
sketch3.addConstraint(Sketcher.Constraint("Equal", 28, 30))
sketch3.addConstraint(Sketcher.Constraint("Equal", 27, 31))
sketch3.addConstraint(Sketcher.Constraint("Equal", 30, 32))
sketch3.addConstraint(Sketcher.Constraint("Equal", 32, 34))
sketch3.addConstraint(Sketcher.Constraint("Equal", 31, 35))
sketch3.addConstraint(Sketcher.Constraint("Radius", 2, 6.5))
sketch3.addConstraint(Sketcher.Constraint("Distance", 0, 1.0))
sketch3.addConstraint(Sketcher.Constraint("Angle", 0, Q("7.5 deg")))
sketch3.addConstraint(Sketcher.Constraint("Angle", 7, Q("27.5 deg")))
sketch3.addConstraint(Sketcher.Constraint("Angle", 11, Q("47.5 deg")))
sketch3.addConstraint(Sketcher.Constraint("Angle", 15, Q("67.5 deg")))
sketch3.addConstraint(Sketcher.Constraint("Angle", 19, Q("87.5 deg")))
sketch3.addConstraint(Sketcher.Constraint("Angle", 23, Q("107.5 deg")))
sketch3.addConstraint(Sketcher.Constraint("Angle", 27, Q("127.5 deg")))
sketch3.addConstraint(Sketcher.Constraint("Angle", 31, Q("147.5 deg")))
sketch3.addConstraint(Sketcher.Constraint("Angle", 35, Q("167.5 deg")))
sketch3.addConstraint(Sketcher.Constraint("DistanceY", -1, 1, 12, 2, 3.25))
sketch3.addConstraint(Sketcher.Constraint("DistanceX", 21, 2, -1, 1, 5.891001))
sketch3.addConstraint(Sketcher.Constraint("DistanceY", 29, 2, -1, 1, 5.891001))
sketch3.addConstraint(Sketcher.Constraint("DistanceY", 35, 2, -1, 1, 7.214))
sketch3.addConstraint(Sketcher.Constraint("DistanceY", -1, 1, 0, 2, 7.5011))
sketch3.addConstraint(Sketcher.Constraint("DistanceX", 3, 2, -1, 1, 1.474669))
sketch3.addConstraint(Sketcher.Constraint("DistanceX", 4, 2, -1, 1, 2.223131))
sketch3.addConstraint(Sketcher.Constraint("DistanceY", -1, 1, 5, 2, 5.324488))
sketch3.addConstraint(Sketcher.Constraint("DistanceX", 8, 2, -1, 1, 4.178119))
sketch3.addConstraint(Sketcher.Constraint("DistanceX", 9, 2, -1, 1, 5.324488))
sketch3.addConstraint(Sketcher.Constraint("DistanceX", 14, 2, -1, 1, 7.120438))
sketch3.addConstraint(Sketcher.Constraint("DistanceX", 16, 2, -1, 1, 6.40125))
sketch3.addConstraint(Sketcher.Constraint("DistanceX", 18, 2, -1, 1, 7.514671))
sketch3.addConstraint(Sketcher.Constraint("DistanceX", 26, 2, -1, 1, 5.645769))
sketch3.setExpression("Constraints[173]", "Params.sketch3_radius")
sketch3.setExpression("Constraints[174]", "Params.sketch3_length")
pad3 = body.newObject("PartDesign::Pad", "Pad002")
pad3.Profile = sketch3
pad3.setExpression("Length", "Params.pad3_length")

doc.recompute()
